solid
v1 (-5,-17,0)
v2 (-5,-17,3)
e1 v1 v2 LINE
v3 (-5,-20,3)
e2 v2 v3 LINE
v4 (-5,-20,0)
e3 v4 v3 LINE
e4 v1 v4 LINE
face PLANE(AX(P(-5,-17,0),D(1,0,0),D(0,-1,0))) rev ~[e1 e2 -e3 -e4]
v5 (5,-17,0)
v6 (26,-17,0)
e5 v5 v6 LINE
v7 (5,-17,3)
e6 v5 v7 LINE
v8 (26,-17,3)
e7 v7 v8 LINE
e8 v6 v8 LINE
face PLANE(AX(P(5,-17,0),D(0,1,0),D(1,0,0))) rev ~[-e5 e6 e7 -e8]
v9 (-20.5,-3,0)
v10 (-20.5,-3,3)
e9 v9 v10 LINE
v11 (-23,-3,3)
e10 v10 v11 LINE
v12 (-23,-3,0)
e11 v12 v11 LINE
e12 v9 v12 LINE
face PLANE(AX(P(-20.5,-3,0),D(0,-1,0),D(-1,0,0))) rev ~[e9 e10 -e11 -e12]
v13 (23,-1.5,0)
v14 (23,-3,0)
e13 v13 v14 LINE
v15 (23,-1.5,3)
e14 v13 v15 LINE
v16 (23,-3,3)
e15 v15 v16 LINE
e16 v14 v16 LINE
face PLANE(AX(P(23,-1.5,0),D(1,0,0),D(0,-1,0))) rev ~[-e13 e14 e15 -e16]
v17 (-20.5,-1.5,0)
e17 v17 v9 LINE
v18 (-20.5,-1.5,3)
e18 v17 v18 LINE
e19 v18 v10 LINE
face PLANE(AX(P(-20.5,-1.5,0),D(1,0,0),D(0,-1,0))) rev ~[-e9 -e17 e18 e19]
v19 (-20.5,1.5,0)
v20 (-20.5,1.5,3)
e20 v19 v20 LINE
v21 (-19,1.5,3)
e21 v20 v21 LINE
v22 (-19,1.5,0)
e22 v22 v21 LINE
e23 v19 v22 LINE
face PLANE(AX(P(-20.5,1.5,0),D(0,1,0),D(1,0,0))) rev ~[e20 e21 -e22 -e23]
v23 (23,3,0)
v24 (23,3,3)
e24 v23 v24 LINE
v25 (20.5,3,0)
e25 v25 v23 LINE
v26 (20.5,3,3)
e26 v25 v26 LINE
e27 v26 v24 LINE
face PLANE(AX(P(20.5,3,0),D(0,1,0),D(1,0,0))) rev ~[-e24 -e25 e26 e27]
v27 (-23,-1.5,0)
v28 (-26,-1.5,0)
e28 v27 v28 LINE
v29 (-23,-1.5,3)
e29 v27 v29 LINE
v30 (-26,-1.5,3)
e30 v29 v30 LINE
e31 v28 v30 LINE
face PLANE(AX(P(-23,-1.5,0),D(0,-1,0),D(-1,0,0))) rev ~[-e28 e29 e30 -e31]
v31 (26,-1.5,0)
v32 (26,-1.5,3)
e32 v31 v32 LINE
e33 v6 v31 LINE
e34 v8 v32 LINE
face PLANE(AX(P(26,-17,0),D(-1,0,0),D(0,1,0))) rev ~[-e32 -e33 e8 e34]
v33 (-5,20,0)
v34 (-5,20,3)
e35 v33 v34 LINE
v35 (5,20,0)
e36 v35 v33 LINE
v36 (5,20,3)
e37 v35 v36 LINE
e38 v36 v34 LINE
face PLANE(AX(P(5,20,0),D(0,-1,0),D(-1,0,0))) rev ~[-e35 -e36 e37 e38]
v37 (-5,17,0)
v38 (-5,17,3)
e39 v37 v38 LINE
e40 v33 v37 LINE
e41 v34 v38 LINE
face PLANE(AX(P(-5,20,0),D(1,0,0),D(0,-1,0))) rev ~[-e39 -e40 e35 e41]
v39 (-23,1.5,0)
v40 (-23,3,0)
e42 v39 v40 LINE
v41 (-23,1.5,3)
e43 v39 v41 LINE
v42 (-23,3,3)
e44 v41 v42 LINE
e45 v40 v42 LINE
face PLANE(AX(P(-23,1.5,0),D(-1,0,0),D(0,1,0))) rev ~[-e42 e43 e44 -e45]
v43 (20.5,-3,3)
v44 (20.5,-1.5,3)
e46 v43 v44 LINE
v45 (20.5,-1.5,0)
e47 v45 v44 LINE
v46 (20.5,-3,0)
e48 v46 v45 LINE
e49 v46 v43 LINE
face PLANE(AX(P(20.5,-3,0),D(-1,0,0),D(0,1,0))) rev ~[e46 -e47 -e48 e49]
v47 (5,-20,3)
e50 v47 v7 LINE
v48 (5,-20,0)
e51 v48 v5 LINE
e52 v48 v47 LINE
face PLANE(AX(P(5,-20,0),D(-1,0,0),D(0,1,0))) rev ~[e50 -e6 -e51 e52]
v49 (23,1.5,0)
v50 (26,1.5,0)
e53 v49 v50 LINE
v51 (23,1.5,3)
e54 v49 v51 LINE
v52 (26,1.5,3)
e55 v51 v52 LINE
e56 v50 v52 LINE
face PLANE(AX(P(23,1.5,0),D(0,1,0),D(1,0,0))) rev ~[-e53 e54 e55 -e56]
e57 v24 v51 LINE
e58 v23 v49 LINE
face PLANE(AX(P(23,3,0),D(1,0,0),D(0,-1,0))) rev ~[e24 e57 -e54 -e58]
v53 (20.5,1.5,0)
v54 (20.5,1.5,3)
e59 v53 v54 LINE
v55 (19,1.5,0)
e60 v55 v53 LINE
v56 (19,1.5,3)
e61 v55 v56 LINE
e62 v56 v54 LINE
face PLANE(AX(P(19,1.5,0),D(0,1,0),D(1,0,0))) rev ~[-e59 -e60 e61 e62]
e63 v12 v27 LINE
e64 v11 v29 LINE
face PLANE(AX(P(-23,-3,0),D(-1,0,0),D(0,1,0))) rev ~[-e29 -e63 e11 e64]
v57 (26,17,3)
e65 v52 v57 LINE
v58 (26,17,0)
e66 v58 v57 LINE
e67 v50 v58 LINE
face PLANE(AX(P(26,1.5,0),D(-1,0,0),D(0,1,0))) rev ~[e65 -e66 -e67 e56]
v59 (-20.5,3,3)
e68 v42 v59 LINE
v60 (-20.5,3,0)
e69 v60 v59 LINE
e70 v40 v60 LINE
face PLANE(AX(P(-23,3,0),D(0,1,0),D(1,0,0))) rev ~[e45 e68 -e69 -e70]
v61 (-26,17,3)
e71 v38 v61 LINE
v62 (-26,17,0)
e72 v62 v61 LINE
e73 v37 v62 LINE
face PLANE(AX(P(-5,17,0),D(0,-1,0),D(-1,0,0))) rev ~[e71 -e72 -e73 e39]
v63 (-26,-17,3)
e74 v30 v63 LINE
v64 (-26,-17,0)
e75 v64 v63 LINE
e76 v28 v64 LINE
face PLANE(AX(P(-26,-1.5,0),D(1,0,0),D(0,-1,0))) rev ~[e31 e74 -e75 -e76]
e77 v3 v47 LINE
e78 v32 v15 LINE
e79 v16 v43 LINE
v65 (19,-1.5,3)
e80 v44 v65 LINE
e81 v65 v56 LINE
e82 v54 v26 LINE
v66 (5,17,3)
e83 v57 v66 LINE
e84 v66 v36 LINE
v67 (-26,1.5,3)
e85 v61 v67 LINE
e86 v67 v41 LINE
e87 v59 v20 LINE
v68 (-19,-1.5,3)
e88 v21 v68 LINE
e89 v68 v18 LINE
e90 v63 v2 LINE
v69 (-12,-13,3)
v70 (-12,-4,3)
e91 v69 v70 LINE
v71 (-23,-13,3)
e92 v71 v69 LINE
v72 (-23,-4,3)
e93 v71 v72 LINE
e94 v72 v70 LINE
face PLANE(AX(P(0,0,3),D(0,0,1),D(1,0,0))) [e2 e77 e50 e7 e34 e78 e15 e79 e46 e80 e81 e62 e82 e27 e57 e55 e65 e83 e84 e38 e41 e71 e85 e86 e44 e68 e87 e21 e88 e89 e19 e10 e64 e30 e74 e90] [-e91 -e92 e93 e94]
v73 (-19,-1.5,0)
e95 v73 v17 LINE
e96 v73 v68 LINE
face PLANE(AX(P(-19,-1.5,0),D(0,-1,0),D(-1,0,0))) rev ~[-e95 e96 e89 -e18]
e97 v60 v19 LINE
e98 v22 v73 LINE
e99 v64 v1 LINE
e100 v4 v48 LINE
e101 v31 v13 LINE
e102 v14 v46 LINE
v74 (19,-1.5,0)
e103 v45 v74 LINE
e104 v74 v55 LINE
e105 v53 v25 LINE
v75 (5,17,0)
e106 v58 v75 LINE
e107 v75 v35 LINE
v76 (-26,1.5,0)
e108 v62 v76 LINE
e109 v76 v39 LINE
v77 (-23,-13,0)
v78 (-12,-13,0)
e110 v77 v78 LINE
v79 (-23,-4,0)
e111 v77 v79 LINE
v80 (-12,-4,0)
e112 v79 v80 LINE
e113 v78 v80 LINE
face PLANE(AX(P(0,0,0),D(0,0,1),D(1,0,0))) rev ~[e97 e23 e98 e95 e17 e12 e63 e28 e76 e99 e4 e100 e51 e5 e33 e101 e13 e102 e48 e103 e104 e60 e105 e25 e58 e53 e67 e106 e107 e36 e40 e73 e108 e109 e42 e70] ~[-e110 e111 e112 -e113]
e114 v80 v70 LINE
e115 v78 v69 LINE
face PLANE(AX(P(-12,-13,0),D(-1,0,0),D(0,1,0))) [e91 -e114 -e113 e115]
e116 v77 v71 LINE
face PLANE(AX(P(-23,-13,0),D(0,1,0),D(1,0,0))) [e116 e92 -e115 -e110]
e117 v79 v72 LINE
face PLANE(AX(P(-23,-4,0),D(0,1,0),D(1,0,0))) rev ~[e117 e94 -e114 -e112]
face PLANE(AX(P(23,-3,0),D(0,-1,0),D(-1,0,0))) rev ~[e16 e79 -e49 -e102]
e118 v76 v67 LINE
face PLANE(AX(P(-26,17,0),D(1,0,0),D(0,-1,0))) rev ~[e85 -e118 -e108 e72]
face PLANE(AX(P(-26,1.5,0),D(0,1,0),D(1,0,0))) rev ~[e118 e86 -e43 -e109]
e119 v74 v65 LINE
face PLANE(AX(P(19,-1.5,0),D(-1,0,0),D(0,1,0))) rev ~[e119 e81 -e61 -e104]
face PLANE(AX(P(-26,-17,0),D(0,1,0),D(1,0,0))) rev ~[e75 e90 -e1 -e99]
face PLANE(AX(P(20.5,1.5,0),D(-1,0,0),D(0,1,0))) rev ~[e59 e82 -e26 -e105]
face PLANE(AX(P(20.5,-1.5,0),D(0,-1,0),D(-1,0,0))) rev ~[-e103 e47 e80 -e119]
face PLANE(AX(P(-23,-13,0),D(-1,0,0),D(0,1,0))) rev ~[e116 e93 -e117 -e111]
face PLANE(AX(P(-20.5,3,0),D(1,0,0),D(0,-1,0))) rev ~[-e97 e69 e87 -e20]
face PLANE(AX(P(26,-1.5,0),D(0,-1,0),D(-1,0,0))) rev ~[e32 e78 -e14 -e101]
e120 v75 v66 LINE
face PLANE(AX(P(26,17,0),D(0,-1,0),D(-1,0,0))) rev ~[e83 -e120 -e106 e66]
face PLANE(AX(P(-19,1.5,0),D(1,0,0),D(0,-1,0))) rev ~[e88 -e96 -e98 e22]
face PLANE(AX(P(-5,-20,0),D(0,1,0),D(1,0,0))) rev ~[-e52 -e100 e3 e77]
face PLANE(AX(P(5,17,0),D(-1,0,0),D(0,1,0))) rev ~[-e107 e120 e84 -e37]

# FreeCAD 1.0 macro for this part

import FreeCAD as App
import Part
import Sketcher
from FreeCAD import Vector
Q = App.Units.Quantity


def add_polygon(sketch, points):
    """Adds a closed chain of lines whose ends are joined by coincident constraints."""
    first, n = sketch.GeometryCount, len(points)
    for a, b in zip(points, points[1:] + points[:1]):
        sketch.addGeometry(Part.LineSegment(App.Vector(*a, 0), App.Vector(*b, 0)), False)
    for i in range(n):
        sketch.addConstraint(Sketcher.Constraint("Coincident", first + i, 2, first + (i + 1) % n, 1))

doc = App.newDocument("Part")
body = doc.addObject("PartDesign::Body", "Body")

sketch1 = body.newObject("Sketcher::SketchObject", "Sketch")
sketch1.AttachmentSupport = (doc.getObject("XY_Plane"), [""])
sketch1.MapMode = "FlatFace"
add_polygon(sketch1, [(-26, -17), (-5, -17), (-5, -20), (5, -20), (5, -17), (26, -17), (26, -1.5), (23, -1.5), (23, -3), (20.5, -3), (20.5, -1.5), (19, -1.5), (19, 1.5), (20.5, 1.5), (20.5, 3), (23, 3), (23, 1.5), (26, 1.5), (26, 17), (5, 17), (5, 20), (-5, 20), (-5, 17), (-26, 17), (-26, 1.5), (-23, 1.5), (-23, 3), (-20.5, 3), (-20.5, 1.5), (-19, 1.5), (-19, -1.5), (-20.5, -1.5), (-20.5, -3), (-23, -3), (-23, -1.5), (-26, -1.5)])
add_polygon(sketch1, [(-12, -13), (-23, -13), (-23, -4), (-12, -4)])
sketch1.addConstraint(Sketcher.Constraint("Horizontal", 0))
sketch1.addConstraint(Sketcher.Constraint("Vertical", 1))
sketch1.addConstraint(Sketcher.Constraint("Horizontal", 2))
sketch1.addConstraint(Sketcher.Constraint("Vertical", 3))
sketch1.addConstraint(Sketcher.Constraint("Horizontal", 4))
sketch1.addConstraint(Sketcher.Constraint("Vertical", 5))
sketch1.addConstraint(Sketcher.Constraint("Horizontal", 6))
sketch1.addConstraint(Sketcher.Constraint("Vertical", 7))
sketch1.addConstraint(Sketcher.Constraint("Horizontal", 8))
sketch1.addConstraint(Sketcher.Constraint("Vertical", 9))
sketch1.addConstraint(Sketcher.Constraint("Horizontal", 10))
sketch1.addConstraint(Sketcher.Constraint("Vertical", 11))
sketch1.addConstraint(Sketcher.Constraint("Horizontal", 12))
sketch1.addConstraint(Sketcher.Constraint("Vertical", 13))
sketch1.addConstraint(Sketcher.Constraint("Horizontal", 14))
sketch1.addConstraint(Sketcher.Constraint("Vertical", 15))
sketch1.addConstraint(Sketcher.Constraint("Horizontal", 16))
sketch1.addConstraint(Sketcher.Constraint("Vertical", 17))
sketch1.addConstraint(Sketcher.Constraint("Horizontal", 18))
sketch1.addConstraint(Sketcher.Constraint("Vertical", 19))
sketch1.addConstraint(Sketcher.Constraint("Horizontal", 20))
sketch1.addConstraint(Sketcher.Constraint("Vertical", 21))
sketch1.addConstraint(Sketcher.Constraint("Horizontal", 22))
sketch1.addConstraint(Sketcher.Constraint("Vertical", 23))
sketch1.addConstraint(Sketcher.Constraint("Horizontal", 24))
sketch1.addConstraint(Sketcher.Constraint("Vertical", 25))
sketch1.addConstraint(Sketcher.Constraint("Horizontal", 26))
sketch1.addConstraint(Sketcher.Constraint("Vertical", 27))
sketch1.addConstraint(Sketcher.Constraint("Horizontal", 28))
sketch1.addConstraint(Sketcher.Constraint("Vertical", 29))
sketch1.addConstraint(Sketcher.Constraint("Horizontal", 30))
sketch1.addConstraint(Sketcher.Constraint("Vertical", 31))
sketch1.addConstraint(Sketcher.Constraint("Horizontal", 32))
sketch1.addConstraint(Sketcher.Constraint("Vertical", 33))
sketch1.addConstraint(Sketcher.Constraint("Horizontal", 34))
sketch1.addConstraint(Sketcher.Constraint("Vertical", 35))
sketch1.addConstraint(Sketcher.Constraint("Horizontal", 36))
sketch1.addConstraint(Sketcher.Constraint("Vertical", 37))
sketch1.addConstraint(Sketcher.Constraint("Horizontal", 38))
sketch1.addConstraint(Sketcher.Constraint("Vertical", 39))
sketch1.addConstraint(Sketcher.Constraint("Symmetric", 0, 2, 18, 2, -1, 1))
sketch1.addConstraint(Sketcher.Constraint("Symmetric", 2, 2, 20, 2, -1, 1))
sketch1.addConstraint(Sketcher.Constraint("Symmetric", 4, 2, 22, 2, -1, 1))
sketch1.addConstraint(Sketcher.Constraint("Symmetric", 6, 2, 24, 2, -1, 1))
sketch1.addConstraint(Sketcher.Constraint("Symmetric", 8, 2, 26, 2, -1, 1))
sketch1.addConstraint(Sketcher.Constraint("Symmetric", 10, 2, 28, 2, -1, 1))
sketch1.addConstraint(Sketcher.Constraint("Symmetric", 12, 2, 30, 2, -1, 1))
sketch1.addConstraint(Sketcher.Constraint("Symmetric", 14, 2, 32, 2, -1, 1))
sketch1.addConstraint(Sketcher.Constraint("Symmetric", 16, 2, 34, 2, -1, 1))
sketch1.addConstraint(Sketcher.Constraint("Symmetric", 0, 2, 3, 2, -2))
sketch1.addConstraint(Sketcher.Constraint("Symmetric", 16, 2, 23, 2, -2))
sketch1.addConstraint(Sketcher.Constraint("Symmetric", 14, 2, 25, 2, -2))
sketch1.addConstraint(Sketcher.Constraint("Symmetric", 12, 2, 27, 2, -2))
sketch1.addConstraint(Sketcher.Constraint("Horizontal", 6, 2, 9, 2))
sketch1.addConstraint(Sketcher.Constraint("Vertical", 33, 2, 36, 2))
sketch1.addConstraint(Sketcher.Constraint("Equal", 34, 1))
sketch1.addConstraint(Sketcher.Constraint("Equal", 30, 7))
sketch1.addConstraint(Sketcher.Constraint("Equal", 3, 11))
sketch1.addConstraint(Sketcher.Constraint("DistanceX", 0, 1, 0, 2, Q("21 mm")))
sketch1.addConstraint(Sketcher.Constraint("DistanceX", 2, 1, 2, 2, Q("10 mm")))
sketch1.addConstraint(Sketcher.Constraint("DistanceX", 6, 2, 6, 1, Q("3 mm")))
sketch1.addConstraint(Sketcher.Constraint("DistanceX", 36, 2, 36, 1, Q("11 mm")))
sketch1.addConstraint(Sketcher.Constraint("DistanceY", 37, 1, 37, 2, Q("9 mm")))
sketch1.addConstraint(Sketcher.Constraint("DistanceX", 8, 2, 8, 1, Q("2.5 mm")))
sketch1.addConstraint(Sketcher.Constraint("DistanceX", 10, 2, 10, 1, Q("1.5 mm")))
sketch1.addConstraint(Sketcher.Constraint("DistanceY", 5, 1, 5, 2, Q("15.5 mm")))
sketch1.addConstraint(Sketcher.Constraint("DistanceY", 36, 2, -1, 1, Q("13 mm")))
pad1 = body.newObject("PartDesign::Pad", "Pad")
pad1.Profile = sketch1
pad1.Length = 3

doc.recompute()
